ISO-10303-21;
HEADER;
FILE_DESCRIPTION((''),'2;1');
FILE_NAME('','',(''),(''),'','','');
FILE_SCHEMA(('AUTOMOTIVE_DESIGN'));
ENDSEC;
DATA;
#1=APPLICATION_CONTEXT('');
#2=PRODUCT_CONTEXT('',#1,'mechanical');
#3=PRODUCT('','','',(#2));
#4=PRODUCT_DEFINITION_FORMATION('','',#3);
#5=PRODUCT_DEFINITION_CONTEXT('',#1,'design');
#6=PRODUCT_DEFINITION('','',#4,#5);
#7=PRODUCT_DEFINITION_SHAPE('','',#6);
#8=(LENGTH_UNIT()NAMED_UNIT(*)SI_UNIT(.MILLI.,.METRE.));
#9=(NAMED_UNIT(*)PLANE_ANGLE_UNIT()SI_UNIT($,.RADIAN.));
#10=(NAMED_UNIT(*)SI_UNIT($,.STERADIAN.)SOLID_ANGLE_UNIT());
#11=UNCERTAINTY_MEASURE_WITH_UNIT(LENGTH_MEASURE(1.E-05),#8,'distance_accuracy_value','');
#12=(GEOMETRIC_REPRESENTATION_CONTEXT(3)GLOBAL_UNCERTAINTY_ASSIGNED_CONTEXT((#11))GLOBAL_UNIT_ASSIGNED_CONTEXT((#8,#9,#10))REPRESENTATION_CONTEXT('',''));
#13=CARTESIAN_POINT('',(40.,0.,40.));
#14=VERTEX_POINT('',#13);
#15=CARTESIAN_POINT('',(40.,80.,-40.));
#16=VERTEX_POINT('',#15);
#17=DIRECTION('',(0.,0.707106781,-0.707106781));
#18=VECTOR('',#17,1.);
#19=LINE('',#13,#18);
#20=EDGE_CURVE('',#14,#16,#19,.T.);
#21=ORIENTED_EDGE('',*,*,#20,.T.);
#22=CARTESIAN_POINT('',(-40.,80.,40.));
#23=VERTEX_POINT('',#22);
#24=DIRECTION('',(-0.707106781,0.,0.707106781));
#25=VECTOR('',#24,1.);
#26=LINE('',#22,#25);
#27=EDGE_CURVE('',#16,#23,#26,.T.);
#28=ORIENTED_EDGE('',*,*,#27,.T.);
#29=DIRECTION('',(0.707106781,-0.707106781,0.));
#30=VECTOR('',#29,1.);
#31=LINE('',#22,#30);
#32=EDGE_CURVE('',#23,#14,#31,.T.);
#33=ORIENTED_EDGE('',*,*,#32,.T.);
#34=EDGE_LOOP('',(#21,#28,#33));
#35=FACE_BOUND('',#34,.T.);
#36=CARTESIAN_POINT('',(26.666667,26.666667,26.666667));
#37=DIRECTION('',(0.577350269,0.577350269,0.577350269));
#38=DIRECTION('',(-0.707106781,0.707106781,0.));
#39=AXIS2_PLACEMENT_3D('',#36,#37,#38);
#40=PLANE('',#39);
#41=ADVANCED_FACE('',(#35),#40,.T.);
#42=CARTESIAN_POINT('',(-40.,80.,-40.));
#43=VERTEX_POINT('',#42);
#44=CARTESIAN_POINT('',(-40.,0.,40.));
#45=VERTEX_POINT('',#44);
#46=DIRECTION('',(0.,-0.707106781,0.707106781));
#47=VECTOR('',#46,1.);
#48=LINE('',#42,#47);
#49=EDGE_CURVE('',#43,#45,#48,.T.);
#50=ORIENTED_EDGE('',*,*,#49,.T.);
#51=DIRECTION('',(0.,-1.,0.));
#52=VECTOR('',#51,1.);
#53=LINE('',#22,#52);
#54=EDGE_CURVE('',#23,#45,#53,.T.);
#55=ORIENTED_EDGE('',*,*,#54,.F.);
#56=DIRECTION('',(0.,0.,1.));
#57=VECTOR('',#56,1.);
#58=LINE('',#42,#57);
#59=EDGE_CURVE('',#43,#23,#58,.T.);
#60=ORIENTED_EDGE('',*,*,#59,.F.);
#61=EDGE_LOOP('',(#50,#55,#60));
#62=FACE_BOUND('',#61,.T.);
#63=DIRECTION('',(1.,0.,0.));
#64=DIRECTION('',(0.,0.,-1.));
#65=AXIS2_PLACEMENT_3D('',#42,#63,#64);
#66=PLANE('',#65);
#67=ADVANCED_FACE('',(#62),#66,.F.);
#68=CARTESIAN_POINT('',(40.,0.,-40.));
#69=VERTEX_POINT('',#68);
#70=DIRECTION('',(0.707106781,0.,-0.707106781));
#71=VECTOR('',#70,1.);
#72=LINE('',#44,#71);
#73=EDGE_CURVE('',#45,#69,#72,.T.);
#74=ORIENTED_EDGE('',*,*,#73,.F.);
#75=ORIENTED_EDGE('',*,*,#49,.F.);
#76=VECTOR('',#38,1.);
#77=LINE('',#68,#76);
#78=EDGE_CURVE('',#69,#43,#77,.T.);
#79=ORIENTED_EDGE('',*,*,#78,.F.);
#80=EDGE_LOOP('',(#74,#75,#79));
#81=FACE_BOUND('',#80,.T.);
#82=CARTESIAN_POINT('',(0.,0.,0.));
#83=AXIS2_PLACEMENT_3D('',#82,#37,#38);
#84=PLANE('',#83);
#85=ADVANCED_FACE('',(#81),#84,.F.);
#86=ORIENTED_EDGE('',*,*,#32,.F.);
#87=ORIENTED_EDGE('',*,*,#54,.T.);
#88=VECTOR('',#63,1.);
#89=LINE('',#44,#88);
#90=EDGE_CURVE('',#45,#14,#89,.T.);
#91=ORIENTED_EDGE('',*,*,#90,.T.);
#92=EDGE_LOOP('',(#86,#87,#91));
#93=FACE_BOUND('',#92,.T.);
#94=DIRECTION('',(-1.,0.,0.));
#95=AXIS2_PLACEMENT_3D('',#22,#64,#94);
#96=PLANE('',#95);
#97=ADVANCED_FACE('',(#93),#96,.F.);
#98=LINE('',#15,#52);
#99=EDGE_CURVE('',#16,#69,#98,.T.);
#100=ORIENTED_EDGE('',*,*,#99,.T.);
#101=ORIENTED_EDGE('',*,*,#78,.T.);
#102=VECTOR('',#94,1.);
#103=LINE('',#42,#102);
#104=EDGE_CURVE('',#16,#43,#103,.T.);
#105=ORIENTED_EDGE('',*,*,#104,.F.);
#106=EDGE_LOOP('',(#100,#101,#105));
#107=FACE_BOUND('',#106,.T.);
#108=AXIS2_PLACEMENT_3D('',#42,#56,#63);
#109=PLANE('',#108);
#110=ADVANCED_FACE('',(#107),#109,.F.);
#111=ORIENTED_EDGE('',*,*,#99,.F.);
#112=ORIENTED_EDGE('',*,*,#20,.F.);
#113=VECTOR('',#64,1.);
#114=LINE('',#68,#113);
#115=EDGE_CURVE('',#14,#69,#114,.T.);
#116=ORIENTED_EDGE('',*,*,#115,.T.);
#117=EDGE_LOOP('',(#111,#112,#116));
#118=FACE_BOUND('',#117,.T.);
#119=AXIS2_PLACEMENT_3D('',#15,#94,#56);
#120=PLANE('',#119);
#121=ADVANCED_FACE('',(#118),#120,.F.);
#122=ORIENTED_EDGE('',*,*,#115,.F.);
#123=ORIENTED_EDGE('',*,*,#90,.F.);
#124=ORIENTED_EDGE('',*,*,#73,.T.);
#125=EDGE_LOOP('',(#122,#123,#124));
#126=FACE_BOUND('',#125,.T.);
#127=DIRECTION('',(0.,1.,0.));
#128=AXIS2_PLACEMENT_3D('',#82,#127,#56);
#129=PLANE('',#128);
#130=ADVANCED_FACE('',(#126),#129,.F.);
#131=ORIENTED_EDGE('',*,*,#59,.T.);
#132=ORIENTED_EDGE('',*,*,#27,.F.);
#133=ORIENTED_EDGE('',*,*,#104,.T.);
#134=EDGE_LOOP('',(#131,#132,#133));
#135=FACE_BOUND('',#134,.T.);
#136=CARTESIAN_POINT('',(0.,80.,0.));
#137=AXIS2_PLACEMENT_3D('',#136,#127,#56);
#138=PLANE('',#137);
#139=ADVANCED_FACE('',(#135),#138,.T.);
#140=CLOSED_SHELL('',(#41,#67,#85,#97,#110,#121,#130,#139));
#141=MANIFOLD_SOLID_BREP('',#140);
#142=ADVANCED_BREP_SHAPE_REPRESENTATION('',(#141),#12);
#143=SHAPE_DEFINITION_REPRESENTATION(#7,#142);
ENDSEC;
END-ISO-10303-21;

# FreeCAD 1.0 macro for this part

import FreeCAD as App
import Part
import Sketcher

V = App.Vector
Q = App.Units.Quantity


def add_polygon(sketch, points):
    """Adds a closed chain of lines whose ends are joined by coincident constraints."""
    first, n = sketch.GeometryCount, len(points)
    for a, b in zip(points, points[1:] + points[:1]):
        sketch.addGeometry(Part.LineSegment(App.Vector(*a, 0), App.Vector(*b, 0)), False)
    for i in range(n):
        sketch.addConstraint(Sketcher.Constraint("Coincident", first + i, 2, first + (i + 1) % n, 1))

doc = App.newDocument("Part")
body = doc.addObject("PartDesign::Body", "Body")

# Sketch on XZ plane
sketch1 = body.newObject("Sketcher::SketchObject", "Sketch")
sketch1.AttachmentSupport = (doc.getObject("XZ_Plane"), [""])
sketch1.MapMode = "FlatFace"
add_polygon(sketch1, [(-40, -40), (-40, 40), (40, 40), (40, -40)])  # lines 0-3
sketch1.addConstraint(Sketcher.Constraint("Vertical", 0))
sketch1.addConstraint(Sketcher.Constraint("Horizontal", 1))
sketch1.addConstraint(Sketcher.Constraint("Vertical", 2))
sketch1.addConstraint(Sketcher.Constraint("Horizontal", 3))
sketch1.addConstraint(Sketcher.Constraint("Symmetric", 0, 2, 2, 2, -1, 1))
sketch1.addConstraint(Sketcher.Constraint("Equal", 3, 0))
sketch1.addConstraint(Sketcher.Constraint("DistanceX", 1, 1, 1, 2, Q("80 mm")))
pad1 = body.newObject("PartDesign::Pad", "Pad")
pad1.Profile = sketch1
pad1.Length = 80
pad1.Reversed = True

# Sketch on an angled plane
sketch2 = body.newObject("Sketcher::SketchObject", "Sketch001")
sketch2.Placement = App.Placement(V(26.666667, 26.666667, 26.666667), App.Rotation(V(0.816496581, -0.40824829, -0.40824829), V(0, 0.707106781, -0.707106781), V(0.577350269, 0.577350269, 0.577350269), "ZXY"))
add_polygon(sketch2, [(-81.649658, 28.284271), (16.329932, -28.284271), (16.329932, 84.852814)])  # lines 0-2
sketch2.addConstraint(Sketcher.Constraint("Vertical", 1))
sketch2.addConstraint(Sketcher.Constraint("Equal", 0, 2))
sketch2.addConstraint(Sketcher.Constraint("Angle", 0, Q("-30 deg")))
sketch2.addConstraint(Sketcher.Constraint("DistanceY", 1, 1, 1, 2, Q("113.137085 mm")))
sketch2.addConstraint(Sketcher.Constraint("DistanceX", -1, 1, 0, 2, Q("16.329932 mm")))
sketch2.addConstraint(Sketcher.Constraint("DistanceY", 0, 2, -1, 1, Q("28.284271 mm")))
pocket1 = body.newObject("PartDesign::Pocket", "Pocket")
pocket1.Profile = sketch2
pocket1.Length = 80
pocket1.Reversed = True

# Sketch on an angled plane
sketch3 = body.newObject("Sketcher::SketchObject", "Sketch002")
sketch3.Placement = App.Placement(V(0, 0, 0), App.Rotation(V(0.816496581, -0.40824829, -0.40824829), V(0, 0.707106781, -0.707106781), V(0.577350269, 0.577350269, 0.577350269), "ZXY"))
add_polygon(sketch3, [(-48.989795, -28.284271), (48.989795, 28.284271), (-48.989795, 84.852814)])  # lines 0-2
sketch3.addConstraint(Sketcher.Constraint("Vertical", 2))
sketch3.addConstraint(Sketcher.Constraint("Symmetric", 0, 2, 2, 2, -1, 1))
sketch3.addConstraint(Sketcher.Constraint("Equal", 0, 1))
sketch3.addConstraint(Sketcher.Constraint("Angle", 0, Q("30 deg")))
sketch3.addConstraint(Sketcher.Constraint("DistanceY", 2, 2, 2, 1, Q("113.137085 mm")))
pocket2 = body.newObject("PartDesign::Pocket", "Pocket001")
pocket2.Profile = sketch3
pocket2.Length = 80

doc.recompute()
